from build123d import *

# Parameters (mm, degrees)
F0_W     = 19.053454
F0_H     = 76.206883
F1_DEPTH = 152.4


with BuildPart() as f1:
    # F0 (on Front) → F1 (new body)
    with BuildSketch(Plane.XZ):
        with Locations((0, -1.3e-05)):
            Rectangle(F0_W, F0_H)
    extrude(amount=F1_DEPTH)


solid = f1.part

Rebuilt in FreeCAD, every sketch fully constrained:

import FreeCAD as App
import Part
import Sketcher

V = App.Vector
Q = App.Units.Quantity

doc = App.newDocument("Part")
params = doc.addObject("Spreadsheet::Sheet", "Params")
for row, (alias, value) in enumerate([
    ("pad1_length", "6 in"),
], start=1):
    params.set(f"A{row}", alias)
    params.set(f"B{row}", "=" + value)
    params.setAlias(f"B{row}", alias)

body = doc.addObject("PartDesign::Body", "Body")

sketch1 = doc.addObject("Sketcher::SketchObject", "Sketch")
body.addObject(sketch1)
sketch1.AttachmentSupport = (doc.XZ_Plane, [""])
sketch1.MapMode = "FlatFace"
sketch1.addGeometry([
    Part.LineSegment(V(-10, 38, 0), V(-10, -38, 0)),
    Part.LineSegment(V(-10, -38, 0), V(10, -38, 0)),
    Part.LineSegment(V(10, -38, 0), V(10, 38, 0)),
    Part.LineSegment(V(10, 38, 0), V(-10, 38, 0)),
], False)
sketch1.addConstraint([
    Sketcher.Constraint("Coincident", 0, 2, 1, 1),
    Sketcher.Constraint("Coincident", 1, 2, 2, 1),
    Sketcher.Constraint("Coincident", 2, 2, 3, 1),
    Sketcher.Constraint("Coincident", 3, 2, 0, 1),
    Sketcher.Constraint("Vertical", 0),
    Sketcher.Constraint("Horizontal", 1),
    Sketcher.Constraint("Vertical", 2),
    Sketcher.Constraint("Horizontal", 3),
    Sketcher.Constraint("DistanceX", 1, 1, 1, 2, Q("19.053454 mm")),
    Sketcher.Constraint("DistanceY", 0, 2, 0, 1, Q("76.206883 mm")),
    Sketcher.Constraint("DistanceY", -1, 1, 2, 2, Q("38.103428 mm")),
    Sketcher.Constraint("DistanceX", 0, 2, -1, 1, Q("9.526727 mm")),
])
pad1 = doc.addObject("PartDesign::Pad", "Pad")
body.addObject(pad1)
pad1.Profile = sketch1
pad1.setExpression("Length", "Params.pad1_length")

doc.recompute()
